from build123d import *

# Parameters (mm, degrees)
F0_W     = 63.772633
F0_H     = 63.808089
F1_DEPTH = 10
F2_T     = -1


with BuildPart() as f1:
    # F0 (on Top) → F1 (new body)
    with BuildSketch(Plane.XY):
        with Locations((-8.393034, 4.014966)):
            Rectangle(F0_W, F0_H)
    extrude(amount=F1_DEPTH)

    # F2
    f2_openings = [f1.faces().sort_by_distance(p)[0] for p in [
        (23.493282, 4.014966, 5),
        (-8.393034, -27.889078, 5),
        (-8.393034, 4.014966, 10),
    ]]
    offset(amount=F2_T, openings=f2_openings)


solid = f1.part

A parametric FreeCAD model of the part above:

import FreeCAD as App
import Part
import Sketcher
Q = App.Units.Quantity


def faces_at(feature, points):
    """Names of the faces that lie closest to the given points."""
    faces = feature.Shape.Faces
    near = lambda p: min(range(len(faces)), key=lambda i: faces[i].distToShape(Part.Vertex(*p))[0])
    return sorted({f"Face{near(p) + 1}" for p in points})


def add_polygon(sketch, points):
    """Adds a closed chain of lines whose ends are joined by coincident constraints."""
    first, n = sketch.GeometryCount, len(points)
    for a, b in zip(points, points[1:] + points[:1]):
        sketch.addGeometry(Part.LineSegment(App.Vector(*a, 0), App.Vector(*b, 0)), False)
    for i in range(n):
        sketch.addConstraint(Sketcher.Constraint("Coincident", first + i, 2, first + (i + 1) % n, 1))

doc = App.newDocument("Part")
params = doc.addObject("Spreadsheet::Sheet", "Params")
for row, (alias, value) in enumerate([
    ("pad1_length", "10 mm"),
    ("thickness_wall", "1 mm"),
], start=1):
    params.set(f"A{row}", alias)
    params.set(f"B{row}", "=" + value)
    params.setAlias(f"B{row}", alias)

body = doc.addObject("PartDesign::Body", "Body")

sketch1 = body.newObject("Sketcher::SketchObject", "Sketch")
sketch1.AttachmentSupport = (doc.getObject("XY_Plane"), [""])
sketch1.MapMode = "FlatFace"
add_polygon(sketch1, [(-40, 36), (-40, -28), (23, -28), (23, 36)])
sketch1.addConstraint(Sketcher.Constraint("Vertical", 0))
sketch1.addConstraint(Sketcher.Constraint("Horizontal", 1))
sketch1.addConstraint(Sketcher.Constraint("Vertical", 2))
sketch1.addConstraint(Sketcher.Constraint("Horizontal", 3))
sketch1.addConstraint(Sketcher.Constraint("DistanceY", 0, 2, 0, 1, Q("63.808089 mm")))
sketch1.addConstraint(Sketcher.Constraint("DistanceX", 1, 1, 1, 2, Q("63.772633 mm")))
sketch1.addConstraint(Sketcher.Constraint("DistanceX", 0, 2, -1, 1, Q("40.27935 mm")))
sketch1.addConstraint(Sketcher.Constraint("DistanceY", 0, 2, -1, 1, Q("27.889079 mm")))
pad1 = body.newObject("PartDesign::Pad", "Pad")
pad1.Profile = sketch1
pad1.setExpression("Length", "Params.pad1_length")
doc.recompute()

thickness = body.newObject("PartDesign::Thickness", "Thickness")
thickness.Base = (pad1, faces_at(pad1, [(23.493, 4.015, 5), (-8.393, -27.889, 5), (-8.393, 4.015, 10)]))
thickness.setExpression("Value", "Params.thickness_wall")
thickness.Reversed = True
thickness.Join = "Arc"

doc.recompute()
